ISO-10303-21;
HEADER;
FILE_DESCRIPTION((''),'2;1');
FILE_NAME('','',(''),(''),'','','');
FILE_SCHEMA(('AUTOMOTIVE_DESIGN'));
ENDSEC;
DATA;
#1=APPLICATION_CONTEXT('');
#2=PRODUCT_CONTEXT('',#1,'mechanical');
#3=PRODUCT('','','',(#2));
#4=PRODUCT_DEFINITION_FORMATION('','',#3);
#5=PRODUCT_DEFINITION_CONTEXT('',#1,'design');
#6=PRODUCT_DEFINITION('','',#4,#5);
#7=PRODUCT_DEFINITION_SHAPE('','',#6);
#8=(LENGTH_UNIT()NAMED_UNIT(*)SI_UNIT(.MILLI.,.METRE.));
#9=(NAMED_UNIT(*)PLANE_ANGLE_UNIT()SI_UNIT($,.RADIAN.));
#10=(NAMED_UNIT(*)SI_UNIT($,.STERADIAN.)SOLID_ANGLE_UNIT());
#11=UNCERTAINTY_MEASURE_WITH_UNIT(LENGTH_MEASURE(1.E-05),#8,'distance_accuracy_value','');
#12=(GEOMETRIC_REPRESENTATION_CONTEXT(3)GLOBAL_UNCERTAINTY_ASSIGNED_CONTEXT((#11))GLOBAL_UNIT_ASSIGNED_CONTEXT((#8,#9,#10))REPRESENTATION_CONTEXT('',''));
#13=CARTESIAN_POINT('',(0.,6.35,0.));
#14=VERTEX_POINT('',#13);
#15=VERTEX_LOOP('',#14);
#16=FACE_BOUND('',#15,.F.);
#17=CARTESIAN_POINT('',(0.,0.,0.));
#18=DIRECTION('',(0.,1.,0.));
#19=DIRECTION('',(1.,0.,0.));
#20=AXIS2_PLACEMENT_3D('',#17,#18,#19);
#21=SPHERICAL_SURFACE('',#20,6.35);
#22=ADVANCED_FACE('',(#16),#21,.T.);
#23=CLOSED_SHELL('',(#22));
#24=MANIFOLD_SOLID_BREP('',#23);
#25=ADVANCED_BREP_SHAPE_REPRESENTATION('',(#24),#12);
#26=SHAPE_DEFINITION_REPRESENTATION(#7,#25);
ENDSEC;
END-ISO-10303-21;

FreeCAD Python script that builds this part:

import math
import FreeCAD as App
import Part
import Sketcher
Q = App.Units.Quantity

doc = App.newDocument("Part")
body = doc.addObject("PartDesign::Body", "Body")

sketch1 = doc.addObject("Sketcher::SketchObject", "Sketch")
body.addObject(sketch1)
sketch1.AttachmentSupport = (doc.XY_Plane, [""])
sketch1.MapMode = "FlatFace"
sketch1.addGeometry([
    Part.LineSegment(App.Vector(0, 6, 0), App.Vector(0, -6, 0)),
    Part.ArcOfCircle(Part.Circle(App.Vector(0, 0, 0), App.Vector(0, 0, 1), 6), math.radians(-90), math.radians(90)),
], False)
sketch1.addConstraint([
    Sketcher.Constraint("Coincident", 0, 1, 1, 2),
    Sketcher.Constraint("Coincident", 1, 1, 0, 2),
    Sketcher.Constraint("Vertical", 0),
    Sketcher.Constraint("Coincident", 1, 3, -1, 1),
    Sketcher.Constraint("PointOnObject", 0, 1, -2),
    Sketcher.Constraint("Radius", 1, Q("0.25 in")),
])
revolution = doc.addObject("PartDesign::Revolution", "Revolution")
body.addObject(revolution)
revolution.Profile = sketch1
revolution.ReferenceAxis = (sketch1, ["V_Axis"])
revolution.Angle = 360

doc.recompute()
